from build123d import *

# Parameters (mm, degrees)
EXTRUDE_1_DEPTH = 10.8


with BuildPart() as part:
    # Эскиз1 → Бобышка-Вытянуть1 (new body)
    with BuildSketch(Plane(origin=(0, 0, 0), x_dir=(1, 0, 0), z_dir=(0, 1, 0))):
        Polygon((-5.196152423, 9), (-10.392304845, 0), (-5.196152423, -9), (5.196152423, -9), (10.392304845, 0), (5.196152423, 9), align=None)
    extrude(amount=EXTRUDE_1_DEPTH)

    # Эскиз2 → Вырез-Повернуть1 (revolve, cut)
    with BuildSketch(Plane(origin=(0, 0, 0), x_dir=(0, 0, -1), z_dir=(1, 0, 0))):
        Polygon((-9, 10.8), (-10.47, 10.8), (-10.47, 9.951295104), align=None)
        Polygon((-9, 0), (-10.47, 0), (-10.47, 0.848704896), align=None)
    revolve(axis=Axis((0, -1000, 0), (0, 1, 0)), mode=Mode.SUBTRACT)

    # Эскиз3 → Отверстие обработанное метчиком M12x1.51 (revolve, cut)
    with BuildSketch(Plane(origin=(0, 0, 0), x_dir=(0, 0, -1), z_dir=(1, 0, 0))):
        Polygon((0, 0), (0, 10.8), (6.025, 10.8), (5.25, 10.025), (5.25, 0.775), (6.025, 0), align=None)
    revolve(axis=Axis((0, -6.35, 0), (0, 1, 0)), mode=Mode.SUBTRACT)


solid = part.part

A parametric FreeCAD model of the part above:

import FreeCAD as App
import Part
import Sketcher

V = App.Vector
Q = App.Units.Quantity


def add_polygon(sketch, points):
    """Adds a closed chain of lines whose ends are joined by coincident constraints."""
    first, n = sketch.GeometryCount, len(points)
    for a, b in zip(points, points[1:] + points[:1]):
        sketch.addGeometry(Part.LineSegment(App.Vector(*a, 0), App.Vector(*b, 0)), False)
    for i in range(n):
        sketch.addConstraint(Sketcher.Constraint("Coincident", first + i, 2, first + (i + 1) % n, 1))

doc = App.newDocument("Part")
body = doc.addObject("PartDesign::Body", "Body")

# Sketch on XZ plane
sketch1 = body.newObject("Sketcher::SketchObject", "Sketch")
sketch1.AttachmentSupport = (doc.getObject("XZ_Plane"), [""])
sketch1.MapMode = "FlatFace"
add_polygon(sketch1, [(-5.196152, -9), (-10.392305, 0), (-5.196152, 9), (5.196152, 9), (10.392305, 0), (5.196152, -9)])  # lines 0-5
sketch1.addConstraint(Sketcher.Constraint("Horizontal", 2))
sketch1.addConstraint(Sketcher.Constraint("Horizontal", 5))
sketch1.addConstraint(Sketcher.Constraint("Symmetric", 0, 2, 3, 2, -1, 1))
sketch1.addConstraint(Sketcher.Constraint("Symmetric", 1, 2, 4, 2, -1, 1))
sketch1.addConstraint(Sketcher.Constraint("PointOnObject", 0, 2, -1))
sketch1.addConstraint(Sketcher.Constraint("Parallel", 0, 3))
sketch1.addConstraint(Sketcher.Constraint("Vertical", 2, 2, 4, 2))
sketch1.addConstraint(Sketcher.Constraint("Angle", 0, Q("120 deg")))
sketch1.addConstraint(Sketcher.Constraint("DistanceY", -1, 1, 1, 2, 9.0))
sketch1.addConstraint(Sketcher.Constraint("DistanceX", 2, 1, 2, 2, 10.392305))
pad1 = body.newObject("PartDesign::Pad", "Pad")
pad1.Profile = sketch1
pad1.Length = 10.8
pad1.Reversed = True

# Sketch on YZ plane
sketch2 = body.newObject("Sketcher::SketchObject", "Sketch001")
sketch2.AttachmentSupport = (doc.getObject("YZ_Plane"), [""])
sketch2.MapMode = "FlatFace"
add_polygon(sketch2, [(10.8, 9), (10.8, 10.47), (9.951295, 10.47)])  # lines 0-2
add_polygon(sketch2, [(0, 10.47), (0, 9), (0.848705, 10.47)])  # lines 3-5
sketch2.addConstraint(Sketcher.Constraint("Vertical", 0))
sketch2.addConstraint(Sketcher.Constraint("Horizontal", 1))
sketch2.addConstraint(Sketcher.Constraint("Vertical", 3))
sketch2.addConstraint(Sketcher.Constraint("Horizontal", 5))
sketch2.addConstraint(Sketcher.Constraint("PointOnObject", 3, 2, -2))
sketch2.addConstraint(Sketcher.Constraint("Horizontal", 2, 2, 3, 2))
sketch2.addConstraint(Sketcher.Constraint("Horizontal", 1, 2, 4, 2))
sketch2.addConstraint(Sketcher.Constraint("Equal", 1, 5))
sketch2.addConstraint(Sketcher.Constraint("Angle", 2, Q("-60 deg")))
sketch2.addConstraint(Sketcher.Constraint("DistanceY", -1, 1, 2, 2, 9.0))
sketch2.addConstraint(Sketcher.Constraint("DistanceY", 0, 1, 0, 2, 1.47))
sketch2.addConstraint(Sketcher.Constraint("DistanceX", -1, 1, 0, 2, 10.8))
groove = body.newObject("PartDesign::Groove", "Groove")
groove.Profile = sketch2
groove.ReferenceAxis = (sketch2, ["H_Axis"])
groove.Angle = 360

# Sketch on YZ plane
sketch3 = body.newObject("Sketcher::SketchObject", "Sketch002")
sketch3.AttachmentSupport = (doc.getObject("YZ_Plane"), [""])
sketch3.MapMode = "FlatFace"
add_polygon(sketch3, [(10.8, 0), (0, 0), (0, -6.025), (0.775, -5.25), (10.025, -5.25), (10.8, -6.025)])  # lines 0-5
sketch3.addConstraint(Sketcher.Constraint("Horizontal", 0))
sketch3.addConstraint(Sketcher.Constraint("Vertical", 1))
sketch3.addConstraint(Sketcher.Constraint("Horizontal", 3))
sketch3.addConstraint(Sketcher.Constraint("Vertical", 5))
sketch3.addConstraint(Sketcher.Constraint("Coincident", 0, 2, -1, 1))
sketch3.addConstraint(Sketcher.Constraint("Perpendicular", 2, 4))
sketch3.addConstraint(Sketcher.Constraint("Horizontal", 1, 2, 4, 2))
sketch3.addConstraint(Sketcher.Constraint("Equal", 2, 4))
sketch3.addConstraint(Sketcher.Constraint("DistanceX", 0, 2, 0, 1, 10.8))
sketch3.addConstraint(Sketcher.Constraint("DistanceX", 3, 1, 3, 2, 9.25))
sketch3.addConstraint(Sketcher.Constraint("DistanceY", 1, 2, 1, 1, 6.025))
groove2 = body.newObject("PartDesign::Groove", "Groove001")
groove2.Profile = sketch3
groove2.ReferenceAxis = (sketch3, ["H_Axis"])
groove2.Angle = 360

doc.recompute()
